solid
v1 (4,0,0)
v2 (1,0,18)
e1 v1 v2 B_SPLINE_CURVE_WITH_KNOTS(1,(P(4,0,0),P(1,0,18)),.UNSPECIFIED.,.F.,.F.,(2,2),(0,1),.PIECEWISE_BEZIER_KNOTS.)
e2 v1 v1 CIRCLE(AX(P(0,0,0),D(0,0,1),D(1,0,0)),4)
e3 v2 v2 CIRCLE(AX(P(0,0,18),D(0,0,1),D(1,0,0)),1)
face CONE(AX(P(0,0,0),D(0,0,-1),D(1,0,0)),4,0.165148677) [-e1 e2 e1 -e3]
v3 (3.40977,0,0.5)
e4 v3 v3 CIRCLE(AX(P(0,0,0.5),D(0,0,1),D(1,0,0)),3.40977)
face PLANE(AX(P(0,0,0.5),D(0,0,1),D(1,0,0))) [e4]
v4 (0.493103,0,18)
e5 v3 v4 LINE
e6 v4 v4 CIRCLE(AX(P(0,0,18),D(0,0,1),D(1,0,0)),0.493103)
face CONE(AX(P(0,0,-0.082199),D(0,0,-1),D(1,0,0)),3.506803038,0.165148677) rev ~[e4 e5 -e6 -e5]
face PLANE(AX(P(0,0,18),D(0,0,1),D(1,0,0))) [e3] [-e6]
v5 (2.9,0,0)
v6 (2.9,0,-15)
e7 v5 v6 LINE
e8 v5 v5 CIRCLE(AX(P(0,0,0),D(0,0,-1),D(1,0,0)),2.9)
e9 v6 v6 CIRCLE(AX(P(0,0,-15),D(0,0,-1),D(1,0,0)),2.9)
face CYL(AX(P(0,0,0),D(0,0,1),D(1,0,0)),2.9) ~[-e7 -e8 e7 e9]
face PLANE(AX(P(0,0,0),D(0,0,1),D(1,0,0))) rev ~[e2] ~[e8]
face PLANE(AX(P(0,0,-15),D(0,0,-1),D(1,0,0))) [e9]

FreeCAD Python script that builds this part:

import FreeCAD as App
import Part
import Sketcher


def faces_at(feature, points):
    """Names of the faces that lie closest to the given points."""
    faces = feature.Shape.Faces
    near = lambda p: min(range(len(faces)), key=lambda i: faces[i].distToShape(Part.Vertex(*p))[0])
    return sorted({f"Face{near(p) + 1}" for p in points})

doc = App.newDocument("Part")
body = doc.addObject("PartDesign::Body", "Body")

# Sketch on XY plane
sketch1 = doc.addObject("Sketcher::SketchObject", "Sketch")
body.addObject(sketch1)
sketch1.AttachmentSupport = (doc.XY_Plane, [""])
sketch1.MapMode = "FlatFace"
sketch1.addGeometry(Part.Circle(App.Vector(0, 0, 0), App.Vector(0, 0, 1), 4), False)
sketch1.addConstraint(Sketcher.Constraint("Coincident", 0, 3, -1, 1))
sketch1.addConstraint(Sketcher.Constraint("Diameter", 0, 8.0))

# Sketch on XY plane
sketch2 = doc.addObject("Sketcher::SketchObject", "Sketch001")
body.addObject(sketch2)
sketch2.AttachmentSupport = (doc.XY_Plane, [""])
sketch2.MapMode = "FlatFace"
sketch2.AttachmentOffset = App.Placement(App.Vector(0, 0, 18), App.Rotation())
sketch2.addGeometry(Part.Circle(App.Vector(0, 0, 0), App.Vector(0, 0, 1), 1), False)
sketch2.addConstraint(Sketcher.Constraint("Coincident", 0, 3, -1, 1))
sketch2.addConstraint(Sketcher.Constraint("Diameter", 0, 2.0))

additiveloft = doc.addObject("PartDesign::AdditiveLoft", "AdditiveLoft")
body.addObject(additiveloft)
additiveloft.Profile = sketch1
additiveloft.Sections = [sketch2]
doc.recompute()

thickness = doc.addObject("PartDesign::Thickness", "Thickness")
body.addObject(thickness)
thickness.Base = (additiveloft, faces_at(additiveloft, [(0, 0, 18)]))
thickness.Value = 0.5
thickness.Reversed = True
thickness.Join = "Intersection"

# Sketch on XY plane
sketch3 = doc.addObject("Sketcher::SketchObject", "Sketch002")
body.addObject(sketch3)
sketch3.AttachmentSupport = (doc.XY_Plane, [""])
sketch3.MapMode = "FlatFace"
sketch3.addGeometry(Part.Circle(App.Vector(0, 0, 0), App.Vector(0, 0, 1), 2.9), False)
sketch3.addConstraint(Sketcher.Constraint("Coincident", 0, 3, -1, 1))
sketch3.addConstraint(Sketcher.Constraint("Diameter", 0, 5.8))
pad1 = doc.addObject("PartDesign::Pad", "Pad")
body.addObject(pad1)
pad1.Profile = sketch3
pad1.Length = 15
pad1.Reversed = True

doc.recompute()
